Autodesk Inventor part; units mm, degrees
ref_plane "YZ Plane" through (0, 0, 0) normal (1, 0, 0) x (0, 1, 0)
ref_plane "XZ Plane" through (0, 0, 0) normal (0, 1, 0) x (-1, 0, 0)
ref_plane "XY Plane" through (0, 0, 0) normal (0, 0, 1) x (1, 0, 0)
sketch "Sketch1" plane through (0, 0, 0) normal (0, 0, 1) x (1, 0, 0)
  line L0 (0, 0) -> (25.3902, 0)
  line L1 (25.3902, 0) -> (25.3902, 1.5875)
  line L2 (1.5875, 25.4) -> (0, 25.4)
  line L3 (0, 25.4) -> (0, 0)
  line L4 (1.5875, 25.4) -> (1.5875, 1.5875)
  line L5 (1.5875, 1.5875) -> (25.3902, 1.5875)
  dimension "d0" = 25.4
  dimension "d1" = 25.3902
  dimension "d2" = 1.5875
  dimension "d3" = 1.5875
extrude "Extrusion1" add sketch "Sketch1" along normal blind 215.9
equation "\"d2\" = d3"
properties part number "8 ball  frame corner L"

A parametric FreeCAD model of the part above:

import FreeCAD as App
import Part
import Sketcher

V = App.Vector
Q = App.Units.Quantity


def add_polygon(sketch, points):
    """Adds a closed chain of lines whose ends are joined by coincident constraints."""
    first, n = sketch.GeometryCount, len(points)
    for a, b in zip(points, points[1:] + points[:1]):
        sketch.addGeometry(Part.LineSegment(App.Vector(*a, 0), App.Vector(*b, 0)), False)
    for i in range(n):
        sketch.addConstraint(Sketcher.Constraint("Coincident", first + i, 2, first + (i + 1) % n, 1))

doc = App.newDocument("Part")
body = doc.addObject("PartDesign::Body", "Body")

# Sketch on XY plane
sketch1 = body.newObject("Sketcher::SketchObject", "Sketch")
sketch1.AttachmentSupport = (doc.getObject("XY_Plane"), [""])
sketch1.MapMode = "FlatFace"
add_polygon(sketch1, [(0, 25.4), (0, 0), (25.3902, 0), (25.3902, 1.5875), (1.5875, 1.5875), (1.5875, 25.4)])  # lines 0-5
sketch1.addConstraint([
    Sketcher.Constraint("Vertical", 0),
    Sketcher.Constraint("Horizontal", 1),
    Sketcher.Constraint("Vertical", 2),
    Sketcher.Constraint("Horizontal", 3),
    Sketcher.Constraint("Vertical", 4),
    Sketcher.Constraint("Horizontal", 5),
    Sketcher.Constraint("Coincident", 0, 2, -1, 1),
    Sketcher.Constraint("Equal", 5, 2),
    Sketcher.Constraint("DistanceY", 0, 2, 0, 1, Q("1 in")),
    Sketcher.Constraint("DistanceX", 5, 2, 5, 1, Q("0.0625 in")),
    Sketcher.Constraint("DistanceX", 1, 1, 1, 2, Q("25.3902 mm")),
])
pad1 = body.newObject("PartDesign::Pad", "Pad")
pad1.Profile = sketch1
pad1.Length = Q("8.5 in")

doc.recompute()
